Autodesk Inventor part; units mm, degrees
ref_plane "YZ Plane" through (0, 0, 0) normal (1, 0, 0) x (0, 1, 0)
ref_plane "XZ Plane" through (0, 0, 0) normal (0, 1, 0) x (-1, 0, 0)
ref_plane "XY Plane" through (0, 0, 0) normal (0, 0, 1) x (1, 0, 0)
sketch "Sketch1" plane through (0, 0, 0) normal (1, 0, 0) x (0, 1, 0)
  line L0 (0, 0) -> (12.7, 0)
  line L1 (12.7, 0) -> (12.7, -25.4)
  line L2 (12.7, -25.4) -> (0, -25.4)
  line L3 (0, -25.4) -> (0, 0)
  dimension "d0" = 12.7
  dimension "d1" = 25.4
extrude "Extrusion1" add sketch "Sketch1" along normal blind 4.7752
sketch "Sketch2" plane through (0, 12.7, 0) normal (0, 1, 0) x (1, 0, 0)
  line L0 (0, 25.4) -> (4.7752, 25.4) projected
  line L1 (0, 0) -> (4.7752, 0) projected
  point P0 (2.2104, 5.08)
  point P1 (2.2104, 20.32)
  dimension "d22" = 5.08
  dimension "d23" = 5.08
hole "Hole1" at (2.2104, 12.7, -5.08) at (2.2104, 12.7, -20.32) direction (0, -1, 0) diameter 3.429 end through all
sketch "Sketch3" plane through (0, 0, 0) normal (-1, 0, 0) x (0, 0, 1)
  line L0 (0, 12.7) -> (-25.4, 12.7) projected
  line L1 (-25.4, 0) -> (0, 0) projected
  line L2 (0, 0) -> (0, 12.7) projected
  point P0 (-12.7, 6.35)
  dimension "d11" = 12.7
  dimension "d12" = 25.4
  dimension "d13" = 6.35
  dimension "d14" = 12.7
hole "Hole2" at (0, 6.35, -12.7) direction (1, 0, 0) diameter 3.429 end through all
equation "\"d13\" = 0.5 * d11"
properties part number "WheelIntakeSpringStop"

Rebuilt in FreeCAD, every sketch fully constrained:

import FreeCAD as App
import Part
import Sketcher
Q = App.Units.Quantity

doc = App.newDocument("Part")
params = doc.addObject("Spreadsheet::Sheet", "Params")
for row, (alias, value) in enumerate([
    ("sketch1_height", "1 in"),
    ("sketch1_width", "0.5 in"),
    ("pad1_length", "0.188 in"),
    ("sketch2_diameter", "0.135 in"),
    ("hole_diameter", "0.135 in"),
    ("sketch3_diameter", "0.135 in"),
    ("hole2_diameter", "0.135 in"),
], start=1):
    params.set(f"A{row}", alias)
    params.set(f"B{row}", "=" + value)
    params.setAlias(f"B{row}", alias)

body = doc.addObject("PartDesign::Body", "Body")

# Sketch on YZ plane
sketch1 = body.newObject("Sketcher::SketchObject", "Sketch")
sketch1.AttachmentSupport = (doc.getObject("YZ_Plane"), [""])
sketch1.MapMode = "FlatFace"
sketch1.addGeometry(Part.LineSegment(App.Vector(12.7, 0, 0), App.Vector(0, 0, 0)), False)
sketch1.addGeometry(Part.LineSegment(App.Vector(0, 0, 0), App.Vector(0, -25.4, 0)), False)
sketch1.addGeometry(Part.LineSegment(App.Vector(0, -25.4, 0), App.Vector(12.7, -25.4, 0)), False)
sketch1.addGeometry(Part.LineSegment(App.Vector(12.7, -25.4, 0), App.Vector(12.7, 0, 0)), False)
sketch1.addConstraint(Sketcher.Constraint("Coincident", 0, 2, 1, 1))
sketch1.addConstraint(Sketcher.Constraint("Coincident", 1, 2, 2, 1))
sketch1.addConstraint(Sketcher.Constraint("Coincident", 2, 2, 3, 1))
sketch1.addConstraint(Sketcher.Constraint("Coincident", 3, 2, 0, 1))
sketch1.addConstraint(Sketcher.Constraint("Horizontal", 0))
sketch1.addConstraint(Sketcher.Constraint("Vertical", 1))
sketch1.addConstraint(Sketcher.Constraint("Horizontal", 2))
sketch1.addConstraint(Sketcher.Constraint("Vertical", 3))
sketch1.addConstraint(Sketcher.Constraint("Coincident", 0, 2, -1, 1))
sketch1.addConstraint(Sketcher.Constraint("DistanceY", 1, 2, 1, 1, Q("1 in")))
sketch1.addConstraint(Sketcher.Constraint("DistanceX", 0, 2, 0, 1, Q("0.5 in")))
sketch1.setExpression("Constraints[9]", "Params.sketch1_height")
sketch1.setExpression("Constraints[10]", "Params.sketch1_width")
pad1 = body.newObject("PartDesign::Pad", "Pad")
pad1.Profile = sketch1
pad1.setExpression("Length", "Params.pad1_length")

# Sketch on XZ plane
sketch2 = body.newObject("Sketcher::SketchObject", "Sketch001")
sketch2.AttachmentSupport = (doc.getObject("XZ_Plane"), [""])
sketch2.MapMode = "FlatFace"
sketch2.AttachmentOffset = App.Placement(App.Vector(0, 0, -0.5 * 25.4), App.Rotation())
sketch2.addGeometry(Part.Circle(App.Vector(2.2104, -5.08, 0), App.Vector(0, 0, 1), 1.7145), False)
sketch2.addGeometry(Part.Circle(App.Vector(2.2104, -20.32, 0), App.Vector(0, 0, 1), 1.7145), False)
sketch2.addConstraint(Sketcher.Constraint("Equal", 0, 1))
sketch2.addConstraint(Sketcher.Constraint("Vertical", 0, 3, 1, 3))
sketch2.addConstraint(Sketcher.Constraint("Diameter", 0, Q("0.135 in")))
sketch2.addConstraint(Sketcher.Constraint("DistanceY", 0, 3, -1, 1, Q("0.2 in")))
sketch2.addConstraint(Sketcher.Constraint("DistanceY", 1, 3, -1, 1, Q("0.8 in")))
sketch2.addConstraint(Sketcher.Constraint("DistanceX", -1, 1, 0, 3, Q("2.2104 mm")))
sketch2.setExpression("Constraints[2]", "Params.sketch2_diameter")
doc.recompute()
hole = body.newObject("PartDesign::Hole", "Hole")
hole.Profile = sketch2
hole.ThreadType = "None"
hole.setExpression("Diameter", "Params.hole_diameter")
hole.DepthType = "ThroughAll"
hole.Reversed = True

# Sketch on YZ plane
sketch3 = body.newObject("Sketcher::SketchObject", "Sketch002")
sketch3.AttachmentSupport = (doc.getObject("YZ_Plane"), [""])
sketch3.MapMode = "FlatFace"
sketch3.addGeometry(Part.Circle(App.Vector(6.35, -12.7, 0), App.Vector(0, 0, 1), 1.7145), False)
sketch3.addConstraint(Sketcher.Constraint("Diameter", 0, Q("0.135 in")))
sketch3.addConstraint(Sketcher.Constraint("DistanceY", 0, 3, -1, 1, Q("0.5 in")))
sketch3.addConstraint(Sketcher.Constraint("DistanceX", -1, 1, 0, 3, Q("0.25 in")))
sketch3.setExpression("Constraints[0]", "Params.sketch3_diameter")
doc.recompute()
hole2 = body.newObject("PartDesign::Hole", "Hole001")
hole2.Profile = sketch3
hole2.ThreadType = "None"
hole2.setExpression("Diameter", "Params.hole2_diameter")
hole2.DepthType = "ThroughAll"
hole2.Reversed = True

doc.recompute()
